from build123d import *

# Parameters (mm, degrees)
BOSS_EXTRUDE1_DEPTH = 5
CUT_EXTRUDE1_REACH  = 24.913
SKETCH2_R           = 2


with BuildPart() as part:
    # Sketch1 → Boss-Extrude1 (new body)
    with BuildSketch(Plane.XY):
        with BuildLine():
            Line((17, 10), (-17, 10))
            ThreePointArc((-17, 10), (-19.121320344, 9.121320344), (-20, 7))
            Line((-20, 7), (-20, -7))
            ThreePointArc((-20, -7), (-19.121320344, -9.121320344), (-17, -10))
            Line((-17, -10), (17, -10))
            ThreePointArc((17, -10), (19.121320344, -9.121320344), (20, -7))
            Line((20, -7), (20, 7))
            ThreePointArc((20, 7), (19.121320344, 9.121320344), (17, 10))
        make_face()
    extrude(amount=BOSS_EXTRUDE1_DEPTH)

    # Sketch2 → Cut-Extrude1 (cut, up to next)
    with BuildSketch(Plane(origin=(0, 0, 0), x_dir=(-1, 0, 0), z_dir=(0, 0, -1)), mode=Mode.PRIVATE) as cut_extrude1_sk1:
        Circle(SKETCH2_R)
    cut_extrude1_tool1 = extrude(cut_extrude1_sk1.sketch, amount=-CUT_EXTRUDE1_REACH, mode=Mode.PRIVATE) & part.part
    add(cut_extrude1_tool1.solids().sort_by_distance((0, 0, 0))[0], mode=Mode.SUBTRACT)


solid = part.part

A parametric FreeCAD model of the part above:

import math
import FreeCAD as App
import Part
import Sketcher

doc = App.newDocument("Part")
body = doc.addObject("PartDesign::Body", "Body")

# Sketch on XY plane
sketch1 = body.newObject("Sketcher::SketchObject", "Sketch")
sketch1.AttachmentSupport = (doc.getObject("XY_Plane"), [""])
sketch1.MapMode = "FlatFace"
sketch1.addGeometry([
    Part.LineSegment(App.Vector(17, 10, 0), App.Vector(-17, 10, 0)),  # 0
    Part.ArcOfCircle(Part.Circle(App.Vector(-17, 7, 0), App.Vector(0, 0, 1), 3), math.radians(90), math.radians(180)),  # 1
    Part.LineSegment(App.Vector(-20, 7, 0), App.Vector(-20, -7, 0)),  # 2
    Part.ArcOfCircle(Part.Circle(App.Vector(-17, -7, 0), App.Vector(0, 0, 1), 3), math.radians(180), math.radians(270)),  # 3
    Part.LineSegment(App.Vector(-17, -10, 0), App.Vector(17, -10, 0)),  # 4
    Part.ArcOfCircle(Part.Circle(App.Vector(17, -7, 0), App.Vector(0, 0, 1), 3), math.radians(-90), math.radians(0)),  # 5
    Part.LineSegment(App.Vector(20, -7, 0), App.Vector(20, 7, 0)),  # 6
    Part.ArcOfCircle(Part.Circle(App.Vector(17, 7, 0), App.Vector(0, 0, 1), 3), math.radians(0), math.radians(90)),  # 7
], False)
sketch1.addConstraint([
    Sketcher.Constraint("Tangent", 0, 2, 1, 1),
    Sketcher.Constraint("Tangent", 1, 2, 2, 1),
    Sketcher.Constraint("Tangent", 2, 2, 3, 1),
    Sketcher.Constraint("Tangent", 3, 2, 4, 1),
    Sketcher.Constraint("Tangent", 4, 2, 5, 1),
    Sketcher.Constraint("Tangent", 5, 2, 6, 1),
    Sketcher.Constraint("Tangent", 6, 2, 7, 1),
    Sketcher.Constraint("Tangent", 7, 2, 0, 1),
    Sketcher.Constraint("Horizontal", 0),
    Sketcher.Constraint("Vertical", 2),
    Sketcher.Constraint("Horizontal", 4),
    Sketcher.Constraint("Vertical", 6),
    Sketcher.Constraint("Equal", 1, 3),
    Sketcher.Constraint("Equal", 3, 5),
    Sketcher.Constraint("Equal", 5, 7),
    Sketcher.Constraint("Symmetric", 1, 3, 5, 3, -1, 1),
    Sketcher.Constraint("Radius", 1, 3.0),
    Sketcher.Constraint("DistanceX", 0, 2, 0, 1, 34.0),
    Sketcher.Constraint("DistanceY", 2, 2, 2, 1, 14.0),
])
pad1 = body.newObject("PartDesign::Pad", "Pad")
pad1.Profile = sketch1
pad1.Length = 5

# Sketch on XY plane
sketch2 = body.newObject("Sketcher::SketchObject", "Sketch001")
sketch2.AttachmentSupport = (doc.getObject("XY_Plane"), [""])
sketch2.MapMode = "FlatFace"
sketch2.addGeometry(Part.Circle(App.Vector(0, 0, 0), App.Vector(0, 0, 1), 2), False)
sketch2.addConstraint([
    Sketcher.Constraint("Coincident", 0, 3, -1, 1),
    Sketcher.Constraint("Diameter", 0, 4.0),
])
pocket1 = body.newObject("PartDesign::Pocket", "Pocket")
pocket1.Profile = sketch2
pocket1.Type = "UpToFirst"
pocket1.Reversed = True

doc.recompute()
